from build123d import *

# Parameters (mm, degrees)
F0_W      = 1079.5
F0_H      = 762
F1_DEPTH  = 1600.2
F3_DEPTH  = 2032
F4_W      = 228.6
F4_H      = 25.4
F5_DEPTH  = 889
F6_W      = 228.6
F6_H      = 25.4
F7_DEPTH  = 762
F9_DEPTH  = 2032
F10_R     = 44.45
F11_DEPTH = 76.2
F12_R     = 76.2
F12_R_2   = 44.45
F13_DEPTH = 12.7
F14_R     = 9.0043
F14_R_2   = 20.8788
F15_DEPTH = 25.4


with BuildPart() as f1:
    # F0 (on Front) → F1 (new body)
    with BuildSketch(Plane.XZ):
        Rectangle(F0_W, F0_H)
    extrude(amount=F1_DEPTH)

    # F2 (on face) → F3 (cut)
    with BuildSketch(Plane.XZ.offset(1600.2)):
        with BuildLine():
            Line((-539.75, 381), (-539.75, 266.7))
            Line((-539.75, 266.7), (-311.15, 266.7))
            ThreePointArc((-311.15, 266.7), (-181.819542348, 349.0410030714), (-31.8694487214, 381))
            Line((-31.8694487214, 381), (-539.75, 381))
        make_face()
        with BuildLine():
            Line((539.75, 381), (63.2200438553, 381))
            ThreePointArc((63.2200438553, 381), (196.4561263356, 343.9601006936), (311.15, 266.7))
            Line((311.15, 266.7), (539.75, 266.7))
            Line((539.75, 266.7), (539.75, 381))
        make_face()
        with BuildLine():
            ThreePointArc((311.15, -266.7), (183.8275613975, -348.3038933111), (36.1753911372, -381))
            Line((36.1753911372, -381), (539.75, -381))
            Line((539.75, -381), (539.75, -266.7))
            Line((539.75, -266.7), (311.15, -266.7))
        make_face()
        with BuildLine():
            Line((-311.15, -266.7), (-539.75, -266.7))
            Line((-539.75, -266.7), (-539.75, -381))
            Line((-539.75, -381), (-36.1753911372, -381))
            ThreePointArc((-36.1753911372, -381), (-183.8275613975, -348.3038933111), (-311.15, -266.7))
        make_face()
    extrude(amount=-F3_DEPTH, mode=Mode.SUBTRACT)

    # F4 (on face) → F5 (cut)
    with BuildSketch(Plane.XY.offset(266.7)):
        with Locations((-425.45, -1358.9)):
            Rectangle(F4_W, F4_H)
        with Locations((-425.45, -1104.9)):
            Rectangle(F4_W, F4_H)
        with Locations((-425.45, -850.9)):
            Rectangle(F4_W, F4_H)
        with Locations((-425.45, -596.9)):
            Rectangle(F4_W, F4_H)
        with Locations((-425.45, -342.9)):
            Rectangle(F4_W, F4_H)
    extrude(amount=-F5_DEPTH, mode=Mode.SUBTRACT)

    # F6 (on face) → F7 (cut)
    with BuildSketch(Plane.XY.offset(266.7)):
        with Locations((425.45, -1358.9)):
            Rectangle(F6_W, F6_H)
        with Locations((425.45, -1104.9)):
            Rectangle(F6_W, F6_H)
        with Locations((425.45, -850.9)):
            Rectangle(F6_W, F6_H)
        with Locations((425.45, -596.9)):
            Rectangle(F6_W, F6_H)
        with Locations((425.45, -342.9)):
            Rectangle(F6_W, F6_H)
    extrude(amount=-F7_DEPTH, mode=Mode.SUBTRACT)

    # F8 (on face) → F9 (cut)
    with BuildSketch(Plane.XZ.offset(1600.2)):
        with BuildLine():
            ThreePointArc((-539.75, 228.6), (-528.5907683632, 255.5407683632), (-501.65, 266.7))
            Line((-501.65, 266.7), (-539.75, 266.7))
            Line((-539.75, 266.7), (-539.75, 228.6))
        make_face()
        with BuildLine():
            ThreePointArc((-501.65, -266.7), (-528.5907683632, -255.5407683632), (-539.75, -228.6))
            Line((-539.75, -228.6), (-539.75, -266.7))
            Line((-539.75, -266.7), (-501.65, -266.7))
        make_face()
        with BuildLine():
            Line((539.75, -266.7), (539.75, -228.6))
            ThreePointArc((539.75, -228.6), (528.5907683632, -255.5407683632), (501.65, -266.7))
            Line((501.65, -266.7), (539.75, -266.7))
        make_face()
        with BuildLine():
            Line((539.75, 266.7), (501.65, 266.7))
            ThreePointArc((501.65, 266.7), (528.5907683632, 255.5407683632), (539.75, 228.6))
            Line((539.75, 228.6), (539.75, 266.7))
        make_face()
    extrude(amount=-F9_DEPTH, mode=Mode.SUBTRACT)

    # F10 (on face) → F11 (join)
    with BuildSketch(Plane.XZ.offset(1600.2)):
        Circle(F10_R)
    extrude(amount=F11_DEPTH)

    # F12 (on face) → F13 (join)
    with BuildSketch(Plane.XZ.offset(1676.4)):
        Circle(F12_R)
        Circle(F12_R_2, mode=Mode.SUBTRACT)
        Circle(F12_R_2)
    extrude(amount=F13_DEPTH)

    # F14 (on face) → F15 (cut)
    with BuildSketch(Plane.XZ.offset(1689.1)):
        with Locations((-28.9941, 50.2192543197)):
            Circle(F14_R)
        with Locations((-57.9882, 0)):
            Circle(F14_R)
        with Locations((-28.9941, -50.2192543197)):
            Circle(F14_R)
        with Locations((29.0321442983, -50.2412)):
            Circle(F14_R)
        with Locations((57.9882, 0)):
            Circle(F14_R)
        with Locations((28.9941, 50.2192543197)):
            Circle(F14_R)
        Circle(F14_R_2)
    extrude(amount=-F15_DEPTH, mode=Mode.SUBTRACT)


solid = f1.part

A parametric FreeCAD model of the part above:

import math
import FreeCAD as App
import Part
import Sketcher
Q = App.Units.Quantity

doc = App.newDocument("Part")
body = doc.addObject("PartDesign::Body", "Body")

# Sketch on XZ plane
sketch1 = doc.addObject("Sketcher::SketchObject", "Sketch")
body.addObject(sketch1)
sketch1.AttachmentSupport = (doc.XZ_Plane, [""])
sketch1.MapMode = "FlatFace"
sketch1.addGeometry([
    Part.LineSegment(App.Vector(-540, 381, 0), App.Vector(-540, -381, 0)),
    Part.LineSegment(App.Vector(-540, -381, 0), App.Vector(540, -381, 0)),
    Part.LineSegment(App.Vector(540, -381, 0), App.Vector(540, 381, 0)),
    Part.LineSegment(App.Vector(540, 381, 0), App.Vector(-540, 381, 0)),
], False)
sketch1.addConstraint([
    Sketcher.Constraint("Coincident", 0, 2, 1, 1),
    Sketcher.Constraint("Coincident", 1, 2, 2, 1),
    Sketcher.Constraint("Coincident", 2, 2, 3, 1),
    Sketcher.Constraint("Coincident", 3, 2, 0, 1),
    Sketcher.Constraint("Vertical", 0),
    Sketcher.Constraint("Horizontal", 1),
    Sketcher.Constraint("Vertical", 2),
    Sketcher.Constraint("Horizontal", 3),
    Sketcher.Constraint("Symmetric", 0, 2, 2, 2, -1, 1),
    Sketcher.Constraint("DistanceY", 0, 2, 0, 1, Q("30 in")),
    Sketcher.Constraint("DistanceX", 1, 1, 1, 2, Q("42.5 in")),
])
pad1 = doc.addObject("PartDesign::Pad", "Pad")
body.addObject(pad1)
pad1.Profile = sketch1
pad1.Length = Q("63 in")

# Sketch on XZ plane
sketch2 = doc.addObject("Sketcher::SketchObject", "Sketch001")
body.addObject(sketch2)
sketch2.AttachmentSupport = (doc.XZ_Plane, [""])
sketch2.MapMode = "FlatFace"
sketch2.AttachmentOffset = App.Placement(App.Vector(0, 0, 63 * 25.4), App.Rotation())
sketch2.addGeometry([
    Part.LineSegment(App.Vector(-540, 381, 0), App.Vector(-540, 267, 0)),  # 0
    Part.LineSegment(App.Vector(-540, 267, 0), App.Vector(-311, 267, 0)),  # 1
    Part.ArcOfCircle(Part.Circle(App.Vector(-18, -51, 0), App.Vector(0, 0, 1), 432), math.radians(92), math.radians(133)),  # 2
    Part.LineSegment(App.Vector(-32, 381, 0), App.Vector(-540, 381, 0)),  # 3
    Part.LineSegment(App.Vector(540, 381, 0), App.Vector(63, 381, 0)),  # 4
    Part.ArcOfCircle(Part.Circle(App.Vector(16, -48, 0), App.Vector(0, 0, 1), 432), math.radians(47), math.radians(84)),  # 5
    Part.LineSegment(App.Vector(311, 267, 0), App.Vector(540, 267, 0)),  # 6
    Part.LineSegment(App.Vector(540, 267, 0), App.Vector(540, 381, 0)),  # 7
    Part.ArcOfCircle(Part.Circle(App.Vector(18, 50, 0), App.Vector(0, 0, 1), 432), math.radians(-88), math.radians(-47)),  # 8
    Part.LineSegment(App.Vector(36, -381, 0), App.Vector(540, -381, 0)),  # 9
    Part.LineSegment(App.Vector(540, -381, 0), App.Vector(540, -267, 0)),  # 10
    Part.LineSegment(App.Vector(540, -267, 0), App.Vector(311, -267, 0)),  # 11
    Part.LineSegment(App.Vector(-311, -267, 0), App.Vector(-540, -267, 0)),  # 12
    Part.LineSegment(App.Vector(-540, -267, 0), App.Vector(-540, -381, 0)),  # 13
    Part.LineSegment(App.Vector(-540, -381, 0), App.Vector(-36, -381, 0)),  # 14
    Part.ArcOfCircle(Part.Circle(App.Vector(-18, 50, 0), App.Vector(0, 0, 1), 432), math.radians(-133), math.radians(-92)),  # 15
], False)
sketch2.addConstraint([
    Sketcher.Constraint("Coincident", 0, 2, 1, 1),
    Sketcher.Constraint("Coincident", 1, 2, 2, 2),
    Sketcher.Constraint("Coincident", 2, 1, 3, 1),
    Sketcher.Constraint("Coincident", 3, 2, 0, 1),
    Sketcher.Constraint("Coincident", 4, 2, 5, 2),
    Sketcher.Constraint("Coincident", 5, 1, 6, 1),
    Sketcher.Constraint("Coincident", 6, 2, 7, 1),
    Sketcher.Constraint("Coincident", 7, 2, 4, 1),
    Sketcher.Constraint("Coincident", 8, 1, 9, 1),
    Sketcher.Constraint("Coincident", 9, 2, 10, 1),
    Sketcher.Constraint("Coincident", 10, 2, 11, 1),
    Sketcher.Constraint("Coincident", 11, 2, 8, 2),
    Sketcher.Constraint("Coincident", 12, 2, 13, 1),
    Sketcher.Constraint("Coincident", 13, 2, 14, 1),
    Sketcher.Constraint("Coincident", 14, 2, 15, 2),
    Sketcher.Constraint("Coincident", 15, 1, 12, 1),
    Sketcher.Constraint("Vertical", 0),
    Sketcher.Constraint("Horizontal", 1),
    Sketcher.Constraint("Horizontal", 3),
    Sketcher.Constraint("Horizontal", 4),
    Sketcher.Constraint("Horizontal", 6),
    Sketcher.Constraint("Vertical", 7),
    Sketcher.Constraint("Horizontal", 9),
    Sketcher.Constraint("Vertical", 10),
    Sketcher.Constraint("Horizontal", 11),
    Sketcher.Constraint("Horizontal", 12),
    Sketcher.Constraint("Vertical", 13),
    Sketcher.Constraint("Horizontal", 14),
    Sketcher.Constraint("Equal", 2, 5),
    Sketcher.Constraint("Equal", 5, 8),
    Sketcher.Constraint("Equal", 8, 15),
    Sketcher.Constraint("Symmetric", 3, 2, 9, 2, -1, 1),
    Sketcher.Constraint("Symmetric", 1, 2, 11, 2, -1, 1),
    Sketcher.Constraint("Symmetric", 6, 2, 12, 2, -1, 1),
    Sketcher.Constraint("Symmetric", 8, 3, 15, 3, -2),
    Sketcher.Constraint("Symmetric", 0, 2, 6, 2, -2),
    Sketcher.Constraint("Horizontal", 3, 2, 4, 2),
    Sketcher.Constraint("Horizontal", 9, 2, 13, 2),
    Sketcher.Constraint("Vertical", 5, 1, 11, 2),
    Sketcher.Constraint("Radius", 2, Q("17 in")),
    Sketcher.Constraint("DistanceX", 1, 1, 1, 2, Q("9 in")),
    Sketcher.Constraint("DistanceY", 0, 2, 0, 1, Q("4.5 in")),
    Sketcher.Constraint("DistanceY", -1, 1, 2, 1, Q("15 in")),
    Sketcher.Constraint("DistanceX", 0, 2, -1, 1, Q("21.25 in")),
    Sketcher.Constraint("DistanceX", 3, 2, 3, 1, Q("507.880551 mm")),
    Sketcher.Constraint("DistanceX", 9, 1, 9, 2, Q("503.574609 mm")),
    Sketcher.Constraint("DistanceX", 5, 3, 8, 3, Q("2.412398 mm")),
])
pocket1 = doc.addObject("PartDesign::Pocket", "Pocket")
body.addObject(pocket1)
pocket1.Profile = sketch2
pocket1.Length = Q("80 in")

# Sketch on XY plane
sketch3 = doc.addObject("Sketcher::SketchObject", "Sketch002")
body.addObject(sketch3)
sketch3.AttachmentSupport = (doc.XY_Plane, [""])
sketch3.MapMode = "FlatFace"
sketch3.AttachmentOffset = App.Placement(App.Vector(0, 0, 10.5 * 25.4), App.Rotation())
sketch3.addGeometry([
    Part.LineSegment(App.Vector(-540, -1346, 0), App.Vector(-540, -1372, 0)),  # 0
    Part.LineSegment(App.Vector(-540, -1372, 0), App.Vector(-311, -1372, 0)),  # 1
    Part.LineSegment(App.Vector(-311, -1372, 0), App.Vector(-311, -1346, 0)),  # 2
    Part.LineSegment(App.Vector(-311, -1346, 0), App.Vector(-540, -1346, 0)),  # 3
    Part.LineSegment(App.Vector(-540, -1092, 0), App.Vector(-540, -1118, 0)),  # 4
    Part.LineSegment(App.Vector(-540, -1118, 0), App.Vector(-311, -1118, 0)),  # 5
    Part.LineSegment(App.Vector(-311, -1118, 0), App.Vector(-311, -1092, 0)),  # 6
    Part.LineSegment(App.Vector(-311, -1092, 0), App.Vector(-540, -1092, 0)),  # 7
    Part.LineSegment(App.Vector(-540, -838, 0), App.Vector(-540, -864, 0)),  # 8
    Part.LineSegment(App.Vector(-540, -864, 0), App.Vector(-311, -864, 0)),  # 9
    Part.LineSegment(App.Vector(-311, -864, 0), App.Vector(-311, -838, 0)),  # 10
    Part.LineSegment(App.Vector(-311, -838, 0), App.Vector(-540, -838, 0)),  # 11
    Part.LineSegment(App.Vector(-540, -584, 0), App.Vector(-540, -610, 0)),  # 12
    Part.LineSegment(App.Vector(-540, -610, 0), App.Vector(-311, -610, 0)),  # 13
    Part.LineSegment(App.Vector(-311, -610, 0), App.Vector(-311, -584, 0)),  # 14
    Part.LineSegment(App.Vector(-311, -584, 0), App.Vector(-540, -584, 0)),  # 15
    Part.LineSegment(App.Vector(-540, -330, 0), App.Vector(-540, -356, 0)),  # 16
    Part.LineSegment(App.Vector(-540, -356, 0), App.Vector(-311, -356, 0)),  # 17
    Part.LineSegment(App.Vector(-311, -356, 0), App.Vector(-311, -330, 0)),  # 18
    Part.LineSegment(App.Vector(-311, -330, 0), App.Vector(-540, -330, 0)),  # 19
], False)
sketch3.addConstraint([
    Sketcher.Constraint("Coincident", 0, 2, 1, 1),
    Sketcher.Constraint("Coincident", 1, 2, 2, 1),
    Sketcher.Constraint("Coincident", 2, 2, 3, 1),
    Sketcher.Constraint("Coincident", 3, 2, 0, 1),
    Sketcher.Constraint("Coincident", 4, 2, 5, 1),
    Sketcher.Constraint("Coincident", 5, 2, 6, 1),
    Sketcher.Constraint("Coincident", 6, 2, 7, 1),
    Sketcher.Constraint("Coincident", 7, 2, 4, 1),
    Sketcher.Constraint("Coincident", 8, 2, 9, 1),
    Sketcher.Constraint("Coincident", 9, 2, 10, 1),
    Sketcher.Constraint("Coincident", 10, 2, 11, 1),
    Sketcher.Constraint("Coincident", 11, 2, 8, 1),
    Sketcher.Constraint("Coincident", 12, 2, 13, 1),
    Sketcher.Constraint("Coincident", 13, 2, 14, 1),
    Sketcher.Constraint("Coincident", 14, 2, 15, 1),
    Sketcher.Constraint("Coincident", 15, 2, 12, 1),
    Sketcher.Constraint("Coincident", 16, 2, 17, 1),
    Sketcher.Constraint("Coincident", 17, 2, 18, 1),
    Sketcher.Constraint("Coincident", 18, 2, 19, 1),
    Sketcher.Constraint("Coincident", 19, 2, 16, 1),
    Sketcher.Constraint("Vertical", 0),
    Sketcher.Constraint("Horizontal", 1),
    Sketcher.Constraint("Vertical", 2),
    Sketcher.Constraint("Horizontal", 3),
    Sketcher.Constraint("Vertical", 4),
    Sketcher.Constraint("Horizontal", 5),
    Sketcher.Constraint("Vertical", 6),
    Sketcher.Constraint("Horizontal", 7),
    Sketcher.Constraint("Vertical", 8),
    Sketcher.Constraint("Horizontal", 9),
    Sketcher.Constraint("Vertical", 10),
    Sketcher.Constraint("Horizontal", 11),
    Sketcher.Constraint("Vertical", 12),
    Sketcher.Constraint("Horizontal", 13),
    Sketcher.Constraint("Vertical", 14),
    Sketcher.Constraint("Horizontal", 15),
    Sketcher.Constraint("Vertical", 16),
    Sketcher.Constraint("Horizontal", 17),
    Sketcher.Constraint("Vertical", 18),
    Sketcher.Constraint("Horizontal", 19),
    Sketcher.Constraint("Vertical", 3, 2, 4, 2),
    Sketcher.Constraint("Vertical", 2, 2, 5, 2),
    Sketcher.Constraint("Vertical", 7, 2, 8, 2),
    Sketcher.Constraint("Vertical", 6, 2, 9, 2),
    Sketcher.Constraint("Vertical", 11, 2, 12, 2),
    Sketcher.Constraint("Vertical", 10, 2, 13, 2),
    Sketcher.Constraint("Vertical", 15, 2, 16, 2),
    Sketcher.Constraint("Vertical", 14, 2, 17, 2),
    Sketcher.Constraint("Equal", 2, 4),
    Sketcher.Constraint("Equal", 6, 8),
    Sketcher.Constraint("Equal", 10, 12),
    Sketcher.Constraint("Equal", 14, 16),
    Sketcher.Constraint("DistanceX", 1, 1, 1, 2, Q("9 in")),
    Sketcher.Constraint("DistanceY", 0, 2, 0, 1, Q("1 in")),
    Sketcher.Constraint("DistanceY", 0, 2, -1, 1, Q("54 in")),
    Sketcher.Constraint("DistanceY", 4, 2, -1, 1, Q("44 in")),
    Sketcher.Constraint("DistanceY", 8, 2, -1, 1, Q("34 in")),
    Sketcher.Constraint("DistanceY", 12, 2, -1, 1, Q("24 in")),
    Sketcher.Constraint("DistanceY", 16, 2, -1, 1, Q("14 in")),
    Sketcher.Constraint("DistanceX", 0, 2, -1, 1, Q("21.25 in")),
])
pocket2 = doc.addObject("PartDesign::Pocket", "Pocket001")
body.addObject(pocket2)
pocket2.Profile = sketch3
pocket2.Length = Q("35 in")

# Sketch on XY plane
sketch4 = doc.addObject("Sketcher::SketchObject", "Sketch003")
body.addObject(sketch4)
sketch4.AttachmentSupport = (doc.XY_Plane, [""])
sketch4.MapMode = "FlatFace"
sketch4.AttachmentOffset = App.Placement(App.Vector(0, 0, 10.5 * 25.4), App.Rotation())
sketch4.addGeometry([
    Part.LineSegment(App.Vector(311, -1346, 0), App.Vector(311, -1372, 0)),  # 0
    Part.LineSegment(App.Vector(311, -1372, 0), App.Vector(540, -1372, 0)),  # 1
    Part.LineSegment(App.Vector(540, -1372, 0), App.Vector(540, -1346, 0)),  # 2
    Part.LineSegment(App.Vector(540, -1346, 0), App.Vector(311, -1346, 0)),  # 3
    Part.LineSegment(App.Vector(311, -1092, 0), App.Vector(311, -1118, 0)),  # 4
    Part.LineSegment(App.Vector(311, -1118, 0), App.Vector(540, -1118, 0)),  # 5
    Part.LineSegment(App.Vector(540, -1118, 0), App.Vector(540, -1092, 0)),  # 6
    Part.LineSegment(App.Vector(540, -1092, 0), App.Vector(311, -1092, 0)),  # 7
    Part.LineSegment(App.Vector(311, -838, 0), App.Vector(311, -864, 0)),  # 8
    Part.LineSegment(App.Vector(311, -864, 0), App.Vector(540, -864, 0)),  # 9
    Part.LineSegment(App.Vector(540, -864, 0), App.Vector(540, -838, 0)),  # 10
    Part.LineSegment(App.Vector(540, -838, 0), App.Vector(311, -838, 0)),  # 11
    Part.LineSegment(App.Vector(311, -584, 0), App.Vector(311, -610, 0)),  # 12
    Part.LineSegment(App.Vector(311, -610, 0), App.Vector(540, -610, 0)),  # 13
    Part.LineSegment(App.Vector(540, -610, 0), App.Vector(540, -584, 0)),  # 14
    Part.LineSegment(App.Vector(540, -584, 0), App.Vector(311, -584, 0)),  # 15
    Part.LineSegment(App.Vector(311, -330, 0), App.Vector(311, -356, 0)),  # 16
    Part.LineSegment(App.Vector(311, -356, 0), App.Vector(540, -356, 0)),  # 17
    Part.LineSegment(App.Vector(540, -356, 0), App.Vector(540, -330, 0)),  # 18
    Part.LineSegment(App.Vector(540, -330, 0), App.Vector(311, -330, 0)),  # 19
], False)
sketch4.addConstraint([
    Sketcher.Constraint("Coincident", 0, 2, 1, 1),
    Sketcher.Constraint("Coincident", 1, 2, 2, 1),
    Sketcher.Constraint("Coincident", 2, 2, 3, 1),
    Sketcher.Constraint("Coincident", 3, 2, 0, 1),
    Sketcher.Constraint("Coincident", 4, 2, 5, 1),
    Sketcher.Constraint("Coincident", 5, 2, 6, 1),
    Sketcher.Constraint("Coincident", 6, 2, 7, 1),
    Sketcher.Constraint("Coincident", 7, 2, 4, 1),
    Sketcher.Constraint("Coincident", 8, 2, 9, 1),
    Sketcher.Constraint("Coincident", 9, 2, 10, 1),
    Sketcher.Constraint("Coincident", 10, 2, 11, 1),
    Sketcher.Constraint("Coincident", 11, 2, 8, 1),
    Sketcher.Constraint("Coincident", 12, 2, 13, 1),
    Sketcher.Constraint("Coincident", 13, 2, 14, 1),
    Sketcher.Constraint("Coincident", 14, 2, 15, 1),
    Sketcher.Constraint("Coincident", 15, 2, 12, 1),
    Sketcher.Constraint("Coincident", 16, 2, 17, 1),
    Sketcher.Constraint("Coincident", 17, 2, 18, 1),
    Sketcher.Constraint("Coincident", 18, 2, 19, 1),
    Sketcher.Constraint("Coincident", 19, 2, 16, 1),
    Sketcher.Constraint("Vertical", 0),
    Sketcher.Constraint("Horizontal", 1),
    Sketcher.Constraint("Vertical", 2),
    Sketcher.Constraint("Horizontal", 3),
    Sketcher.Constraint("Vertical", 4),
    Sketcher.Constraint("Horizontal", 5),
    Sketcher.Constraint("Vertical", 6),
    Sketcher.Constraint("Horizontal", 7),
    Sketcher.Constraint("Vertical", 8),
    Sketcher.Constraint("Horizontal", 9),
    Sketcher.Constraint("Vertical", 10),
    Sketcher.Constraint("Horizontal", 11),
    Sketcher.Constraint("Vertical", 12),
    Sketcher.Constraint("Horizontal", 13),
    Sketcher.Constraint("Vertical", 14),
    Sketcher.Constraint("Horizontal", 15),
    Sketcher.Constraint("Vertical", 16),
    Sketcher.Constraint("Horizontal", 17),
    Sketcher.Constraint("Vertical", 18),
    Sketcher.Constraint("Horizontal", 19),
    Sketcher.Constraint("Vertical", 3, 2, 4, 2),
    Sketcher.Constraint("Vertical", 2, 2, 5, 2),
    Sketcher.Constraint("Vertical", 7, 2, 8, 2),
    Sketcher.Constraint("Vertical", 6, 2, 9, 2),
    Sketcher.Constraint("Vertical", 11, 2, 12, 2),
    Sketcher.Constraint("Vertical", 10, 2, 13, 2),
    Sketcher.Constraint("Vertical", 15, 2, 16, 2),
    Sketcher.Constraint("Vertical", 14, 2, 17, 2),
    Sketcher.Constraint("Equal", 2, 4),
    Sketcher.Constraint("Equal", 6, 8),
    Sketcher.Constraint("Equal", 10, 12),
    Sketcher.Constraint("Equal", 14, 16),
    Sketcher.Constraint("DistanceX", 1, 1, 1, 2, Q("9 in")),
    Sketcher.Constraint("DistanceY", 0, 2, 0, 1, Q("1 in")),
    Sketcher.Constraint("DistanceY", 0, 2, -1, 1, Q("54 in")),
    Sketcher.Constraint("DistanceY", 4, 2, -1, 1, Q("44 in")),
    Sketcher.Constraint("DistanceY", 8, 2, -1, 1, Q("34 in")),
    Sketcher.Constraint("DistanceY", 12, 2, -1, 1, Q("24 in")),
    Sketcher.Constraint("DistanceY", 16, 2, -1, 1, Q("14 in")),
    Sketcher.Constraint("DistanceX", -1, 1, 0, 2, Q("12.25 in")),
])
pocket3 = doc.addObject("PartDesign::Pocket", "Pocket002")
body.addObject(pocket3)
pocket3.Profile = sketch4
pocket3.Length = Q("30 in")

# Sketch on XZ plane
sketch5 = doc.addObject("Sketcher::SketchObject", "Sketch004")
body.addObject(sketch5)
sketch5.AttachmentSupport = (doc.XZ_Plane, [""])
sketch5.MapMode = "FlatFace"
sketch5.AttachmentOffset = App.Placement(App.Vector(0, 0, 63 * 25.4), App.Rotation())
sketch5.addGeometry([
    Part.ArcOfCircle(Part.Circle(App.Vector(-502, 229, 0), App.Vector(0, 0, 1), 38), math.radians(90), math.radians(180)),  # 0
    Part.LineSegment(App.Vector(-502, 267, 0), App.Vector(-540, 267, 0)),  # 1
    Part.LineSegment(App.Vector(-540, 267, 0), App.Vector(-540, 229, 0)),  # 2
    Part.ArcOfCircle(Part.Circle(App.Vector(-502, -229, 0), App.Vector(0, 0, 1), 38), math.radians(180), math.radians(270)),  # 3
    Part.LineSegment(App.Vector(-540, -229, 0), App.Vector(-540, -267, 0)),  # 4
    Part.LineSegment(App.Vector(-540, -267, 0), App.Vector(-502, -267, 0)),  # 5
    Part.LineSegment(App.Vector(540, -267, 0), App.Vector(540, -229, 0)),  # 6
    Part.ArcOfCircle(Part.Circle(App.Vector(502, -229, 0), App.Vector(0, 0, 1), 38), math.radians(-90), math.radians(0)),  # 7
    Part.LineSegment(App.Vector(502, -267, 0), App.Vector(540, -267, 0)),  # 8
    Part.LineSegment(App.Vector(540, 267, 0), App.Vector(502, 267, 0)),  # 9
    Part.ArcOfCircle(Part.Circle(App.Vector(502, 229, 0), App.Vector(0, 0, 1), 38), math.radians(0), math.radians(90)),  # 10
    Part.LineSegment(App.Vector(540, 229, 0), App.Vector(540, 267, 0)),  # 11
], False)
sketch5.addConstraint([
    Sketcher.Constraint("Tangent", 0, 1, 1, 1),
    Sketcher.Constraint("Coincident", 1, 2, 2, 1),
    Sketcher.Constraint("Tangent", 2, 2, 0, 2),
    Sketcher.Constraint("Tangent", 3, 1, 4, 1),
    Sketcher.Constraint("Coincident", 4, 2, 5, 1),
    Sketcher.Constraint("Tangent", 5, 2, 3, 2),
    Sketcher.Constraint("Tangent", 6, 2, 7, 2),
    Sketcher.Constraint("Tangent", 7, 1, 8, 1),
    Sketcher.Constraint("Coincident", 8, 2, 6, 1),
    Sketcher.Constraint("Tangent", 9, 2, 10, 2),
    Sketcher.Constraint("Tangent", 10, 1, 11, 1),
    Sketcher.Constraint("Coincident", 11, 2, 9, 1),
    Sketcher.Constraint("Horizontal", 1),
    Sketcher.Constraint("Vertical", 2),
    Sketcher.Constraint("Vertical", 4),
    Sketcher.Constraint("Horizontal", 5),
    Sketcher.Constraint("Vertical", 6),
    Sketcher.Constraint("Horizontal", 8),
    Sketcher.Constraint("Horizontal", 9),
    Sketcher.Constraint("Vertical", 11),
    Sketcher.Constraint("Equal", 0, 3),
    Sketcher.Constraint("Equal", 3, 7),
    Sketcher.Constraint("Equal", 7, 10),
    Sketcher.Constraint("Symmetric", 0, 3, 7, 3, -1, 1),
    Sketcher.Constraint("Symmetric", 3, 3, 10, 3, -1, 1),
    Sketcher.Constraint("Symmetric", 3, 3, 7, 3, -2),
    Sketcher.Constraint("Radius", 0, Q("1.5 in")),
    Sketcher.Constraint("DistanceY", -1, 1, 0, 3, Q("9 in")),
    Sketcher.Constraint("DistanceX", 1, 2, 10, 3, Q("41 in")),
])
pocket4 = doc.addObject("PartDesign::Pocket", "Pocket003")
body.addObject(pocket4)
pocket4.Profile = sketch5
pocket4.Length = Q("80 in")

# Sketch on XZ plane
sketch6 = doc.addObject("Sketcher::SketchObject", "Sketch005")
body.addObject(sketch6)
sketch6.AttachmentSupport = (doc.XZ_Plane, [""])
sketch6.MapMode = "FlatFace"
sketch6.AttachmentOffset = App.Placement(App.Vector(0, 0, 63 * 25.4), App.Rotation())
sketch6.addGeometry(Part.Circle(App.Vector(0, 0, 0), App.Vector(0, 0, 1), 44), False)
sketch6.addConstraint([
    Sketcher.Constraint("Coincident", 0, 3, -1, 1),
    Sketcher.Constraint("Diameter", 0, Q("3.5 in")),
])
pad2 = doc.addObject("PartDesign::Pad", "Pad001")
body.addObject(pad2)
pad2.Profile = sketch6
pad2.Length = Q("3 in")

# Sketch on XZ plane
sketch7 = doc.addObject("Sketcher::SketchObject", "Sketch006")
body.addObject(sketch7)
sketch7.AttachmentSupport = (doc.XZ_Plane, [""])
sketch7.MapMode = "FlatFace"
sketch7.AttachmentOffset = App.Placement(App.Vector(0, 0, 66 * 25.4), App.Rotation())
sketch7.addGeometry(Part.Circle(App.Vector(0, 0, 0), App.Vector(0, 0, 1), 76), False)
sketch7.addConstraint([
    Sketcher.Constraint("Coincident", 0, 3, -1, 1),
    Sketcher.Constraint("Diameter", 0, Q("6 in")),
])
pad3 = doc.addObject("PartDesign::Pad", "Pad002")
body.addObject(pad3)
pad3.Profile = sketch7
pad3.Length = Q("0.5 in")

# Sketch on XZ plane
sketch8 = doc.addObject("Sketcher::SketchObject", "Sketch007")
body.addObject(sketch8)
sketch8.AttachmentSupport = (doc.XZ_Plane, [""])
sketch8.MapMode = "FlatFace"
sketch8.AttachmentOffset = App.Placement(App.Vector(0, 0, 66.5 * 25.4), App.Rotation())
sketch8.addGeometry([
    Part.Circle(App.Vector(-29, 50, 0), App.Vector(0, 0, 1), 9),  # 0
    Part.Circle(App.Vector(-58, 0, 0), App.Vector(0, 0, 1), 9),  # 1
    Part.Circle(App.Vector(-29, -50, 0), App.Vector(0, 0, 1), 9),  # 2
    Part.Circle(App.Vector(29, -50, 0), App.Vector(0, 0, 1), 9),  # 3
    Part.Circle(App.Vector(58, 0, 0), App.Vector(0, 0, 1), 9),  # 4
    Part.Circle(App.Vector(29, 50, 0), App.Vector(0, 0, 1), 9),  # 5
    Part.Circle(App.Vector(0, 0, 0), App.Vector(0, 0, 1), 21),  # 6
], False)
sketch8.addConstraint([
    Sketcher.Constraint("Coincident", 6, 3, -1, 1),
    Sketcher.Constraint("Equal", 0, 1),
    Sketcher.Constraint("Equal", 1, 2),
    Sketcher.Constraint("Equal", 2, 3),
    Sketcher.Constraint("Equal", 3, 4),
    Sketcher.Constraint("Equal", 4, 5),
    Sketcher.Constraint("Symmetric", 1, 3, 4, 3, -1, 1),
    Sketcher.Constraint("Symmetric", 2, 3, 5, 3, -1, 1),
    Sketcher.Constraint("Symmetric", 0, 3, 5, 3, -2),
    Sketcher.Constraint("PointOnObject", 1, 3, -1),
    Sketcher.Constraint("Diameter", 0, Q("0.709 in")),
    Sketcher.Constraint("Diameter", 6, Q("1.644 in")),
    Sketcher.Constraint("DistanceX", 1, 3, -1, 1, Q("2.283 in")),
    Sketcher.Constraint("DistanceY", 3, 3, -1, 1, Q("1.978 in")),
    Sketcher.Constraint("DistanceX", 0, 3, 5, 3, Q("2.283 in")),
    Sketcher.Constraint("DistanceY", 2, 3, 0, 3, Q("100.438509 mm")),
    Sketcher.Constraint("DistanceX", -1, 1, 3, 3, Q("29.032144 mm")),
])
pocket5 = doc.addObject("PartDesign::Pocket", "Pocket004")
body.addObject(pocket5)
pocket5.Profile = sketch8
pocket5.Length = Q("1 in")

doc.recompute()
